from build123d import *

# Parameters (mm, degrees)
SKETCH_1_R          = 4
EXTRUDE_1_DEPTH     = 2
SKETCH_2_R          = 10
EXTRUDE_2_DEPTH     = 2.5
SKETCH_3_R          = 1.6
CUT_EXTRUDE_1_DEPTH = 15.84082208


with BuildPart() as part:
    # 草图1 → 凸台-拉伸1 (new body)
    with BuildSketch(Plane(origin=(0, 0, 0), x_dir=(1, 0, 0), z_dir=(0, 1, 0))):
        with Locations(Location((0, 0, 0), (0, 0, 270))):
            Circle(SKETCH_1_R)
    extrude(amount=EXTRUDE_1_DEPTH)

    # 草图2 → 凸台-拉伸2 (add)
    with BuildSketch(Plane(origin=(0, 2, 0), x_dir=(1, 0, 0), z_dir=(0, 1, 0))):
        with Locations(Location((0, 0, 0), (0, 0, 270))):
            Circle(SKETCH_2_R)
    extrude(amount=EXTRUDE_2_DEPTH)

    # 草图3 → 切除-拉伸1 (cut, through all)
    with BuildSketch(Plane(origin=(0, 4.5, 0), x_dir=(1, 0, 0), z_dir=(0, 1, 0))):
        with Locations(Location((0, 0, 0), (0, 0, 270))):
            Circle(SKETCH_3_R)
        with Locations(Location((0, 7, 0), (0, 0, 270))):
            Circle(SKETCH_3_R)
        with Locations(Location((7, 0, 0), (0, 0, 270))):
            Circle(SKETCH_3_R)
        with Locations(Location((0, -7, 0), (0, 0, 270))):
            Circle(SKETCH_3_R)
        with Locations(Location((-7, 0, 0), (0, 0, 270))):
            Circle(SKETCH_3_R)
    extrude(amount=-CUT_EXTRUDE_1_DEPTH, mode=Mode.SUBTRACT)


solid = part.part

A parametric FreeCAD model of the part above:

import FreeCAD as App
import Part
import Sketcher
from FreeCAD import Vector
Q = App.Units.Quantity

doc = App.newDocument("Part")
body = doc.addObject("PartDesign::Body", "Body")

sketch1 = body.newObject("Sketcher::SketchObject", "Sketch")
sketch1.AttachmentSupport = (doc.getObject("XZ_Plane"), [""])
sketch1.MapMode = "FlatFace"
sketch1.addGeometry(Part.Circle(Vector(0, 0, 0), Vector(0, 0, 1), 4), False)
sketch1.addConstraint(Sketcher.Constraint("Coincident", 0, 3, -1, 1))
sketch1.addConstraint(Sketcher.Constraint("Diameter", 0, Q("8 mm")))
pad1 = body.newObject("PartDesign::Pad", "Pad")
pad1.Profile = sketch1
pad1.Length = 2
pad1.Reversed = True

sketch2 = body.newObject("Sketcher::SketchObject", "Sketch001")
sketch2.AttachmentSupport = (doc.getObject("XZ_Plane"), [""])
sketch2.MapMode = "FlatFace"
sketch2.AttachmentOffset = App.Placement(Vector(0, 0, -2), App.Rotation())
sketch2.addGeometry(Part.Circle(Vector(0, 0, 0), Vector(0, 0, 1), 10), False)
sketch2.addConstraint(Sketcher.Constraint("Coincident", 0, 3, -1, 1))
sketch2.addConstraint(Sketcher.Constraint("Diameter", 0, Q("20 mm")))
pad2 = body.newObject("PartDesign::Pad", "Pad001")
pad2.Profile = sketch2
pad2.Length = 2.5
pad2.Reversed = True

sketch3 = body.newObject("Sketcher::SketchObject", "Sketch002")
sketch3.AttachmentSupport = (doc.getObject("XZ_Plane"), [""])
sketch3.MapMode = "FlatFace"
sketch3.AttachmentOffset = App.Placement(Vector(0, 0, -4.5), App.Rotation())
sketch3.addGeometry(Part.Circle(Vector(0, 0, 0), Vector(0, 0, 1), 1.6), False)
sketch3.addGeometry(Part.Circle(Vector(0, -7, 0), Vector(0, 0, 1), 1.6), False)
sketch3.addGeometry(Part.Circle(Vector(7, 0, 0), Vector(0, 0, 1), 1.6), False)
sketch3.addGeometry(Part.Circle(Vector(0, 7, 0), Vector(0, 0, 1), 1.6), False)
sketch3.addGeometry(Part.Circle(Vector(-7, 0, 0), Vector(0, 0, 1), 1.6), False)
sketch3.addConstraint(Sketcher.Constraint("Coincident", 0, 3, -1, 1))
sketch3.addConstraint(Sketcher.Constraint("Equal", 0, 1))
sketch3.addConstraint(Sketcher.Constraint("Equal", 1, 2))
sketch3.addConstraint(Sketcher.Constraint("Equal", 2, 3))
sketch3.addConstraint(Sketcher.Constraint("Equal", 3, 4))
sketch3.addConstraint(Sketcher.Constraint("Symmetric", 1, 3, 3, 3, -1, 1))
sketch3.addConstraint(Sketcher.Constraint("Symmetric", 2, 3, 4, 3, -1, 1))
sketch3.addConstraint(Sketcher.Constraint("PointOnObject", 1, 3, -2))
sketch3.addConstraint(Sketcher.Constraint("PointOnObject", 2, 3, -1))
sketch3.addConstraint(Sketcher.Constraint("Diameter", 0, Q("3.2 mm")))
sketch3.addConstraint(Sketcher.Constraint("DistanceY", 1, 3, -1, 1, Q("7 mm")))
sketch3.addConstraint(Sketcher.Constraint("DistanceX", -1, 1, 2, 3, Q("7 mm")))
pocket1 = body.newObject("PartDesign::Pocket", "Pocket")
pocket1.Profile = sketch3
pocket1.Type = "ThroughAll"
pocket1.Reversed = True

doc.recompute()
